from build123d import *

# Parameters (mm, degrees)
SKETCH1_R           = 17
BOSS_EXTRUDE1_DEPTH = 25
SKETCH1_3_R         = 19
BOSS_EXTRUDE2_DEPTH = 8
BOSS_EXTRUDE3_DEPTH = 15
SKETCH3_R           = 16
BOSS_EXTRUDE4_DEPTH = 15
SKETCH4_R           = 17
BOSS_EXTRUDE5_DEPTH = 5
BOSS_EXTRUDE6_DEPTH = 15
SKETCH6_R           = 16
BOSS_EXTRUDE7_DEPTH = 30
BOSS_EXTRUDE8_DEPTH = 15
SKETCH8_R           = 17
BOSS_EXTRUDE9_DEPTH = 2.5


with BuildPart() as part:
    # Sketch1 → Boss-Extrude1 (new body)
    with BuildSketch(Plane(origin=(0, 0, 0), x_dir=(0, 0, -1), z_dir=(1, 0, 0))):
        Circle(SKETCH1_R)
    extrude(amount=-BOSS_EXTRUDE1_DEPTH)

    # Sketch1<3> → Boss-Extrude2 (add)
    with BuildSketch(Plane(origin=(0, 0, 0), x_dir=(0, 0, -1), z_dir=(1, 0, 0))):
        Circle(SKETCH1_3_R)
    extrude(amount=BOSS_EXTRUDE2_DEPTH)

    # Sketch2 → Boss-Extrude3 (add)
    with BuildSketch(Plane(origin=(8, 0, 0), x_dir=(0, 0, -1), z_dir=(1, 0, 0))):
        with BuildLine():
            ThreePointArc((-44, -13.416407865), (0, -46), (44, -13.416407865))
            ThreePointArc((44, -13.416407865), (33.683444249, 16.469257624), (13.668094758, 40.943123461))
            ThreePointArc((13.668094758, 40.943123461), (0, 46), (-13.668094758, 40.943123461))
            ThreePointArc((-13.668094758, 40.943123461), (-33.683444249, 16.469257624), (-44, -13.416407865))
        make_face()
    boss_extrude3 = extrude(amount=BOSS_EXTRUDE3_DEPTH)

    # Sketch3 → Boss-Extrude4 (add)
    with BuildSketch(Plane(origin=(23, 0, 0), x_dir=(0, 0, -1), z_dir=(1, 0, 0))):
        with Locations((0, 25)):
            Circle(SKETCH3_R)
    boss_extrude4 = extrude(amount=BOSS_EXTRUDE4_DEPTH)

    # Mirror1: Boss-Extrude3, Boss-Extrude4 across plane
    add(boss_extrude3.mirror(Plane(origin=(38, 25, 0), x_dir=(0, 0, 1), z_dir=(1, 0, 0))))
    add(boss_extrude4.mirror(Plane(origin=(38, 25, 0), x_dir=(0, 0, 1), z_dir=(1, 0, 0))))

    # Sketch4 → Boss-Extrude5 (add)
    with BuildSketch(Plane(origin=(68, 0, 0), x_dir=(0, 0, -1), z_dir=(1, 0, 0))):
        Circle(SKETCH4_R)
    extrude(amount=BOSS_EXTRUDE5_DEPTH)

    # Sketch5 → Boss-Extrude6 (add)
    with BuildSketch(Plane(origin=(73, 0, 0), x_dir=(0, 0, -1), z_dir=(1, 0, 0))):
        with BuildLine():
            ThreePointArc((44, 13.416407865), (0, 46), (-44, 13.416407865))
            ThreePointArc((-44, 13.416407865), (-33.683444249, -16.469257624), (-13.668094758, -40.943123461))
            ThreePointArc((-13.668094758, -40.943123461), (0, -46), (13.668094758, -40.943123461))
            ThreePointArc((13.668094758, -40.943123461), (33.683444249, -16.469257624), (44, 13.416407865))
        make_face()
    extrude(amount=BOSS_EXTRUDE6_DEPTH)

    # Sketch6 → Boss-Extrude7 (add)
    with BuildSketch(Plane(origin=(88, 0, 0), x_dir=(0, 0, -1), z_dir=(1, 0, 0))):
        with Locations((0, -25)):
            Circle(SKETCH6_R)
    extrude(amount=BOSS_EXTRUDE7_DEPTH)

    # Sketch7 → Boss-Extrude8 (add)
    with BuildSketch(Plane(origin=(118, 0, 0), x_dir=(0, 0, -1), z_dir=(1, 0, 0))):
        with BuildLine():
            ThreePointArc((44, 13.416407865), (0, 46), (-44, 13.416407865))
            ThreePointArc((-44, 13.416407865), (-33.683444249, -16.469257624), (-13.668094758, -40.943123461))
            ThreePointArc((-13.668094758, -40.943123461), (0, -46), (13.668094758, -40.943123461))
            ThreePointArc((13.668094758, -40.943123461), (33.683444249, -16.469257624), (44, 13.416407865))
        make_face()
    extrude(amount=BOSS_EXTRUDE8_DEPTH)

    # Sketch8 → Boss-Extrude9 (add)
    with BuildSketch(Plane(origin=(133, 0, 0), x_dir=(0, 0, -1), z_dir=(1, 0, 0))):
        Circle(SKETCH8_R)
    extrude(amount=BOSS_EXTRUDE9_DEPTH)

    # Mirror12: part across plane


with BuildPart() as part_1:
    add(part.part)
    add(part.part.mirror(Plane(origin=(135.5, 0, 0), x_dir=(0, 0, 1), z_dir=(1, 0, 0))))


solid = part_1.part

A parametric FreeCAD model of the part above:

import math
import FreeCAD as App
import Part
import Sketcher

V = App.Vector
Q = App.Units.Quantity

doc = App.newDocument("Part")
params = doc.addObject("Spreadsheet::Sheet", "Params")
for row, (alias, value) in enumerate([
    ("sketch1_diameter", "34 mm"),
    ("pad1_length", "25 mm"),
    ("sketch2_diameter", "38 mm"),
    ("pad2_length", "8 mm"),
    ("sketch3_radius", "46 mm"),
    ("sketch3_radius2", "90 mm"),
    ("sketch3_radius3", "21 mm"),
    ("pad3_length", "15 mm"),
    ("sketch4_diameter", "32 mm"),
    ("pad4_length", "15 mm"),
    ("sketch5_diameter", "34 mm"),
    ("pad5_length", "5 mm"),
    ("sketch6_radius", "46 mm"),
    ("sketch6_radius2", "90 mm"),
    ("sketch6_radius3", "21 mm"),
    ("pad6_length", "15 mm"),
    ("sketch7_diameter", "32 mm"),
    ("pad7_length", "30 mm"),
    ("sketch8_radius", "46 mm"),
    ("sketch8_radius2", "90 mm"),
    ("sketch8_radius3", "21 mm"),
    ("pad8_length", "15 mm"),
    ("sketch9_diameter", "34 mm"),
    ("pad9_length", "2.5 mm"),
], start=1):
    params.set(f"A{row}", alias)
    params.set(f"B{row}", "=" + value)
    params.setAlias(f"B{row}", alias)

body = doc.addObject("PartDesign::Body", "Body")

# Sketch on YZ plane
sketch1 = body.newObject("Sketcher::SketchObject", "Sketch")
sketch1.AttachmentSupport = (doc.getObject("YZ_Plane"), [""])
sketch1.MapMode = "FlatFace"
sketch1.addGeometry(Part.Circle(V(0, 0, 0), V(0, 0, 1), 17), False)
sketch1.addConstraint([
    Sketcher.Constraint("Coincident", 0, 3, -1, 1),
    Sketcher.Constraint("Diameter", 0, Q("34 mm")),
])
sketch1.setExpression("Constraints[1]", "Params.sketch1_diameter")
pad1 = body.newObject("PartDesign::Pad", "Pad")
pad1.Profile = sketch1
pad1.setExpression("Length", "Params.pad1_length")
pad1.Reversed = True

# Sketch on YZ plane
sketch2 = body.newObject("Sketcher::SketchObject", "Sketch001")
sketch2.AttachmentSupport = (doc.getObject("YZ_Plane"), [""])
sketch2.MapMode = "FlatFace"
sketch2.addGeometry(Part.Circle(V(0, 0, 0), V(0, 0, 1), 19), False)
sketch2.addConstraint([
    Sketcher.Constraint("Coincident", 0, 3, -1, 1),
    Sketcher.Constraint("Diameter", 0, Q("38 mm")),
])
sketch2.setExpression("Constraints[1]", "Params.sketch2_diameter")
pad2 = body.newObject("PartDesign::Pad", "Pad001")
pad2.Profile = sketch2
pad2.setExpression("Length", "Params.pad2_length")

# Sketch on YZ plane
sketch3 = body.newObject("Sketcher::SketchObject", "Sketch002")
sketch3.AttachmentSupport = (doc.getObject("YZ_Plane"), [""])
sketch3.MapMode = "FlatFace"
sketch3.AttachmentOffset = App.Placement(V(0, 0, 8), App.Rotation())
sketch3.addGeometry([
    Part.ArcOfCircle(Part.Circle(V(0, 0, 0), V(0, 0, 1), 46), math.radians(107), math.radians(253)),
    Part.ArcOfCircle(Part.Circle(V(-27, 45, 0), V(0, 0, 1), 90), math.radians(-81), math.radians(-41)),
    Part.ArcOfCircle(Part.Circle(V(25, 0, 0), V(0, 0, 1), 21), math.radians(-41), math.radians(41)),
    Part.ArcOfCircle(Part.Circle(V(-27, -45, 0), V(0, 0, 1), 90), math.radians(41), math.radians(81)),
], False)
sketch3.addConstraint([
    Sketcher.Constraint("Coincident", 0, 2, 1, 1),
    Sketcher.Constraint("Tangent", 1, 2, 2, 1),
    Sketcher.Constraint("Tangent", 2, 2, 3, 1),
    Sketcher.Constraint("Coincident", 3, 2, 0, 1),
    Sketcher.Constraint("Coincident", 0, 3, -1, 1),
    Sketcher.Constraint("Equal", 1, 3),
    Sketcher.Constraint("Symmetric", 1, 3, 3, 3, -1),
    Sketcher.Constraint("Radius", 0, Q("46 mm")),
    Sketcher.Constraint("Radius", 1, Q("90 mm")),
    Sketcher.Constraint("Radius", 2, Q("21 mm")),
    Sketcher.Constraint("DistanceX", -1, 1, 2, 3, Q("25 mm")),
    Sketcher.Constraint("DistanceY", 0, 2, -1, 1, Q("44 mm")),
])
sketch3.setExpression("Constraints[7]", "Params.sketch3_radius")
sketch3.setExpression("Constraints[8]", "Params.sketch3_radius2")
sketch3.setExpression("Constraints[9]", "Params.sketch3_radius3")
pad3 = body.newObject("PartDesign::Pad", "Pad002")
pad3.Profile = sketch3
pad3.setExpression("Length", "Params.pad3_length")

# Sketch on YZ plane
sketch4 = body.newObject("Sketcher::SketchObject", "Sketch003")
sketch4.AttachmentSupport = (doc.getObject("YZ_Plane"), [""])
sketch4.MapMode = "FlatFace"
sketch4.AttachmentOffset = App.Placement(V(0, 0, 23), App.Rotation())
sketch4.addGeometry(Part.Circle(V(25, 0, 0), V(0, 0, 1), 16), False)
sketch4.addConstraint([
    Sketcher.Constraint("PointOnObject", 0, 3, -1),
    Sketcher.Constraint("Diameter", 0, Q("32 mm")),
    Sketcher.Constraint("DistanceX", -1, 1, 0, 3, Q("25 mm")),
])
sketch4.setExpression("Constraints[1]", "Params.sketch4_diameter")
pad4 = body.newObject("PartDesign::Pad", "Pad003")
pad4.Profile = sketch4
pad4.setExpression("Length", "Params.pad4_length")
doc.recompute()

datumplane = body.newObject("PartDesign::Plane", "DatumPlane")
datumplane.AttachmentSupport = (doc.getObject("YZ_Plane"), [""])
datumplane.MapMode = "FlatFace"
datumplane.AttachmentOffset = App.Placement(V(0, 0, 38), App.Rotation())
mirrored = body.newObject("PartDesign::Mirrored", "Mirrored")
mirrored.Originals = [pad3, pad4]
mirrored.MirrorPlane = (datumplane, [""])
body.Tip = mirrored

# Sketch on YZ plane
sketch5 = body.newObject("Sketcher::SketchObject", "Sketch004")
sketch5.AttachmentSupport = (doc.getObject("YZ_Plane"), [""])
sketch5.MapMode = "FlatFace"
sketch5.AttachmentOffset = App.Placement(V(0, 0, 68), App.Rotation())
sketch5.addGeometry(Part.Circle(V(0, 0, 0), V(0, 0, 1), 17), False)
sketch5.addConstraint([
    Sketcher.Constraint("Coincident", 0, 3, -1, 1),
    Sketcher.Constraint("Diameter", 0, Q("34 mm")),
])
sketch5.setExpression("Constraints[1]", "Params.sketch5_diameter")
pad5 = body.newObject("PartDesign::Pad", "Pad004")
pad5.Profile = sketch5
pad5.setExpression("Length", "Params.pad5_length")

# Sketch on YZ plane
sketch6 = body.newObject("Sketcher::SketchObject", "Sketch005")
sketch6.AttachmentSupport = (doc.getObject("YZ_Plane"), [""])
sketch6.MapMode = "FlatFace"
sketch6.AttachmentOffset = App.Placement(V(0, 0, 73), App.Rotation())
sketch6.addGeometry([
    Part.ArcOfCircle(Part.Circle(V(0, 0, 0), V(0, 0, 1), 46), math.radians(-73), math.radians(73)),
    Part.ArcOfCircle(Part.Circle(V(27, -45, 0), V(0, 0, 1), 90), math.radians(99), math.radians(139)),
    Part.ArcOfCircle(Part.Circle(V(-25, 0, 0), V(0, 0, 1), 21), math.radians(139), math.radians(221)),
    Part.ArcOfCircle(Part.Circle(V(27, 45, 0), V(0, 0, 1), 90), math.radians(-139), math.radians(-99)),
], False)
sketch6.addConstraint([
    Sketcher.Constraint("Coincident", 0, 2, 1, 1),
    Sketcher.Constraint("Tangent", 1, 2, 2, 1),
    Sketcher.Constraint("Tangent", 2, 2, 3, 1),
    Sketcher.Constraint("Coincident", 3, 2, 0, 1),
    Sketcher.Constraint("Coincident", 0, 3, -1, 1),
    Sketcher.Constraint("Equal", 1, 3),
    Sketcher.Constraint("Symmetric", 1, 3, 3, 3, -1),
    Sketcher.Constraint("Radius", 0, Q("46 mm")),
    Sketcher.Constraint("Radius", 1, Q("90 mm")),
    Sketcher.Constraint("Radius", 2, Q("21 mm")),
    Sketcher.Constraint("DistanceX", 2, 3, -1, 1, Q("25 mm")),
    Sketcher.Constraint("DistanceY", -1, 1, 0, 2, Q("44 mm")),
])
sketch6.setExpression("Constraints[7]", "Params.sketch6_radius")
sketch6.setExpression("Constraints[8]", "Params.sketch6_radius2")
sketch6.setExpression("Constraints[9]", "Params.sketch6_radius3")
pad6 = body.newObject("PartDesign::Pad", "Pad005")
pad6.Profile = sketch6
pad6.setExpression("Length", "Params.pad6_length")

# Sketch on YZ plane
sketch7 = body.newObject("Sketcher::SketchObject", "Sketch006")
sketch7.AttachmentSupport = (doc.getObject("YZ_Plane"), [""])
sketch7.MapMode = "FlatFace"
sketch7.AttachmentOffset = App.Placement(V(0, 0, 88), App.Rotation())
sketch7.addGeometry(Part.Circle(V(-25, 0, 0), V(0, 0, 1), 16), False)
sketch7.addConstraint([
    Sketcher.Constraint("PointOnObject", 0, 3, -1),
    Sketcher.Constraint("Diameter", 0, Q("32 mm")),
    Sketcher.Constraint("DistanceX", 0, 3, -1, 1, Q("25 mm")),
])
sketch7.setExpression("Constraints[1]", "Params.sketch7_diameter")
pad7 = body.newObject("PartDesign::Pad", "Pad006")
pad7.Profile = sketch7
pad7.setExpression("Length", "Params.pad7_length")

# Sketch on YZ plane
sketch8 = body.newObject("Sketcher::SketchObject", "Sketch007")
sketch8.AttachmentSupport = (doc.getObject("YZ_Plane"), [""])
sketch8.MapMode = "FlatFace"
sketch8.AttachmentOffset = App.Placement(V(0, 0, 118), App.Rotation())
sketch8.addGeometry([
    Part.ArcOfCircle(Part.Circle(V(0, 0, 0), V(0, 0, 1), 46), math.radians(-73), math.radians(73)),
    Part.ArcOfCircle(Part.Circle(V(27, -45, 0), V(0, 0, 1), 90), math.radians(99), math.radians(139)),
    Part.ArcOfCircle(Part.Circle(V(-25, 0, 0), V(0, 0, 1), 21), math.radians(139), math.radians(221)),
    Part.ArcOfCircle(Part.Circle(V(27, 45, 0), V(0, 0, 1), 90), math.radians(-139), math.radians(-99)),
], False)
sketch8.addConstraint([
    Sketcher.Constraint("Coincident", 0, 2, 1, 1),
    Sketcher.Constraint("Tangent", 1, 2, 2, 1),
    Sketcher.Constraint("Tangent", 2, 2, 3, 1),
    Sketcher.Constraint("Coincident", 3, 2, 0, 1),
    Sketcher.Constraint("Coincident", 0, 3, -1, 1),
    Sketcher.Constraint("Equal", 1, 3),
    Sketcher.Constraint("Symmetric", 1, 3, 3, 3, -1),
    Sketcher.Constraint("Radius", 0, Q("46 mm")),
    Sketcher.Constraint("Radius", 1, Q("90 mm")),
    Sketcher.Constraint("Radius", 2, Q("21 mm")),
    Sketcher.Constraint("DistanceX", 2, 3, -1, 1, Q("25 mm")),
    Sketcher.Constraint("DistanceY", -1, 1, 0, 2, Q("44 mm")),
])
sketch8.setExpression("Constraints[7]", "Params.sketch8_radius")
sketch8.setExpression("Constraints[8]", "Params.sketch8_radius2")
sketch8.setExpression("Constraints[9]", "Params.sketch8_radius3")
pad8 = body.newObject("PartDesign::Pad", "Pad007")
pad8.Profile = sketch8
pad8.setExpression("Length", "Params.pad8_length")

# Sketch on YZ plane
sketch9 = body.newObject("Sketcher::SketchObject", "Sketch008")
sketch9.AttachmentSupport = (doc.getObject("YZ_Plane"), [""])
sketch9.MapMode = "FlatFace"
sketch9.AttachmentOffset = App.Placement(V(0, 0, 133), App.Rotation())
sketch9.addGeometry(Part.Circle(V(0, 0, 0), V(0, 0, 1), 17), False)
sketch9.addConstraint([
    Sketcher.Constraint("Coincident", 0, 3, -1, 1),
    Sketcher.Constraint("Diameter", 0, Q("34 mm")),
])
sketch9.setExpression("Constraints[1]", "Params.sketch9_diameter")
pad9 = body.newObject("PartDesign::Pad", "Pad008")
pad9.Profile = sketch9
pad9.setExpression("Length", "Params.pad9_length")
body2 = doc.addObject("PartDesign::Body", "Body001")
doc.recompute()

body2.BaseFeature = body
doc.recompute()

mirroring = doc.addObject("Part::Mirroring", "Mirroring")
mirroring.Source = body
mirroring.Base = V(135.5, 0, 0)
mirroring.Normal = V(1, 0, 0)
body3 = doc.addObject("PartDesign::Body", "Body002")
body3.BaseFeature = mirroring
boolean = body2.newObject("PartDesign::Boolean", "Boolean")
boolean.Type = "Fuse"
boolean.addObjects([body3])
doc.recompute()
mirroring.Visibility = False

doc.recompute()
